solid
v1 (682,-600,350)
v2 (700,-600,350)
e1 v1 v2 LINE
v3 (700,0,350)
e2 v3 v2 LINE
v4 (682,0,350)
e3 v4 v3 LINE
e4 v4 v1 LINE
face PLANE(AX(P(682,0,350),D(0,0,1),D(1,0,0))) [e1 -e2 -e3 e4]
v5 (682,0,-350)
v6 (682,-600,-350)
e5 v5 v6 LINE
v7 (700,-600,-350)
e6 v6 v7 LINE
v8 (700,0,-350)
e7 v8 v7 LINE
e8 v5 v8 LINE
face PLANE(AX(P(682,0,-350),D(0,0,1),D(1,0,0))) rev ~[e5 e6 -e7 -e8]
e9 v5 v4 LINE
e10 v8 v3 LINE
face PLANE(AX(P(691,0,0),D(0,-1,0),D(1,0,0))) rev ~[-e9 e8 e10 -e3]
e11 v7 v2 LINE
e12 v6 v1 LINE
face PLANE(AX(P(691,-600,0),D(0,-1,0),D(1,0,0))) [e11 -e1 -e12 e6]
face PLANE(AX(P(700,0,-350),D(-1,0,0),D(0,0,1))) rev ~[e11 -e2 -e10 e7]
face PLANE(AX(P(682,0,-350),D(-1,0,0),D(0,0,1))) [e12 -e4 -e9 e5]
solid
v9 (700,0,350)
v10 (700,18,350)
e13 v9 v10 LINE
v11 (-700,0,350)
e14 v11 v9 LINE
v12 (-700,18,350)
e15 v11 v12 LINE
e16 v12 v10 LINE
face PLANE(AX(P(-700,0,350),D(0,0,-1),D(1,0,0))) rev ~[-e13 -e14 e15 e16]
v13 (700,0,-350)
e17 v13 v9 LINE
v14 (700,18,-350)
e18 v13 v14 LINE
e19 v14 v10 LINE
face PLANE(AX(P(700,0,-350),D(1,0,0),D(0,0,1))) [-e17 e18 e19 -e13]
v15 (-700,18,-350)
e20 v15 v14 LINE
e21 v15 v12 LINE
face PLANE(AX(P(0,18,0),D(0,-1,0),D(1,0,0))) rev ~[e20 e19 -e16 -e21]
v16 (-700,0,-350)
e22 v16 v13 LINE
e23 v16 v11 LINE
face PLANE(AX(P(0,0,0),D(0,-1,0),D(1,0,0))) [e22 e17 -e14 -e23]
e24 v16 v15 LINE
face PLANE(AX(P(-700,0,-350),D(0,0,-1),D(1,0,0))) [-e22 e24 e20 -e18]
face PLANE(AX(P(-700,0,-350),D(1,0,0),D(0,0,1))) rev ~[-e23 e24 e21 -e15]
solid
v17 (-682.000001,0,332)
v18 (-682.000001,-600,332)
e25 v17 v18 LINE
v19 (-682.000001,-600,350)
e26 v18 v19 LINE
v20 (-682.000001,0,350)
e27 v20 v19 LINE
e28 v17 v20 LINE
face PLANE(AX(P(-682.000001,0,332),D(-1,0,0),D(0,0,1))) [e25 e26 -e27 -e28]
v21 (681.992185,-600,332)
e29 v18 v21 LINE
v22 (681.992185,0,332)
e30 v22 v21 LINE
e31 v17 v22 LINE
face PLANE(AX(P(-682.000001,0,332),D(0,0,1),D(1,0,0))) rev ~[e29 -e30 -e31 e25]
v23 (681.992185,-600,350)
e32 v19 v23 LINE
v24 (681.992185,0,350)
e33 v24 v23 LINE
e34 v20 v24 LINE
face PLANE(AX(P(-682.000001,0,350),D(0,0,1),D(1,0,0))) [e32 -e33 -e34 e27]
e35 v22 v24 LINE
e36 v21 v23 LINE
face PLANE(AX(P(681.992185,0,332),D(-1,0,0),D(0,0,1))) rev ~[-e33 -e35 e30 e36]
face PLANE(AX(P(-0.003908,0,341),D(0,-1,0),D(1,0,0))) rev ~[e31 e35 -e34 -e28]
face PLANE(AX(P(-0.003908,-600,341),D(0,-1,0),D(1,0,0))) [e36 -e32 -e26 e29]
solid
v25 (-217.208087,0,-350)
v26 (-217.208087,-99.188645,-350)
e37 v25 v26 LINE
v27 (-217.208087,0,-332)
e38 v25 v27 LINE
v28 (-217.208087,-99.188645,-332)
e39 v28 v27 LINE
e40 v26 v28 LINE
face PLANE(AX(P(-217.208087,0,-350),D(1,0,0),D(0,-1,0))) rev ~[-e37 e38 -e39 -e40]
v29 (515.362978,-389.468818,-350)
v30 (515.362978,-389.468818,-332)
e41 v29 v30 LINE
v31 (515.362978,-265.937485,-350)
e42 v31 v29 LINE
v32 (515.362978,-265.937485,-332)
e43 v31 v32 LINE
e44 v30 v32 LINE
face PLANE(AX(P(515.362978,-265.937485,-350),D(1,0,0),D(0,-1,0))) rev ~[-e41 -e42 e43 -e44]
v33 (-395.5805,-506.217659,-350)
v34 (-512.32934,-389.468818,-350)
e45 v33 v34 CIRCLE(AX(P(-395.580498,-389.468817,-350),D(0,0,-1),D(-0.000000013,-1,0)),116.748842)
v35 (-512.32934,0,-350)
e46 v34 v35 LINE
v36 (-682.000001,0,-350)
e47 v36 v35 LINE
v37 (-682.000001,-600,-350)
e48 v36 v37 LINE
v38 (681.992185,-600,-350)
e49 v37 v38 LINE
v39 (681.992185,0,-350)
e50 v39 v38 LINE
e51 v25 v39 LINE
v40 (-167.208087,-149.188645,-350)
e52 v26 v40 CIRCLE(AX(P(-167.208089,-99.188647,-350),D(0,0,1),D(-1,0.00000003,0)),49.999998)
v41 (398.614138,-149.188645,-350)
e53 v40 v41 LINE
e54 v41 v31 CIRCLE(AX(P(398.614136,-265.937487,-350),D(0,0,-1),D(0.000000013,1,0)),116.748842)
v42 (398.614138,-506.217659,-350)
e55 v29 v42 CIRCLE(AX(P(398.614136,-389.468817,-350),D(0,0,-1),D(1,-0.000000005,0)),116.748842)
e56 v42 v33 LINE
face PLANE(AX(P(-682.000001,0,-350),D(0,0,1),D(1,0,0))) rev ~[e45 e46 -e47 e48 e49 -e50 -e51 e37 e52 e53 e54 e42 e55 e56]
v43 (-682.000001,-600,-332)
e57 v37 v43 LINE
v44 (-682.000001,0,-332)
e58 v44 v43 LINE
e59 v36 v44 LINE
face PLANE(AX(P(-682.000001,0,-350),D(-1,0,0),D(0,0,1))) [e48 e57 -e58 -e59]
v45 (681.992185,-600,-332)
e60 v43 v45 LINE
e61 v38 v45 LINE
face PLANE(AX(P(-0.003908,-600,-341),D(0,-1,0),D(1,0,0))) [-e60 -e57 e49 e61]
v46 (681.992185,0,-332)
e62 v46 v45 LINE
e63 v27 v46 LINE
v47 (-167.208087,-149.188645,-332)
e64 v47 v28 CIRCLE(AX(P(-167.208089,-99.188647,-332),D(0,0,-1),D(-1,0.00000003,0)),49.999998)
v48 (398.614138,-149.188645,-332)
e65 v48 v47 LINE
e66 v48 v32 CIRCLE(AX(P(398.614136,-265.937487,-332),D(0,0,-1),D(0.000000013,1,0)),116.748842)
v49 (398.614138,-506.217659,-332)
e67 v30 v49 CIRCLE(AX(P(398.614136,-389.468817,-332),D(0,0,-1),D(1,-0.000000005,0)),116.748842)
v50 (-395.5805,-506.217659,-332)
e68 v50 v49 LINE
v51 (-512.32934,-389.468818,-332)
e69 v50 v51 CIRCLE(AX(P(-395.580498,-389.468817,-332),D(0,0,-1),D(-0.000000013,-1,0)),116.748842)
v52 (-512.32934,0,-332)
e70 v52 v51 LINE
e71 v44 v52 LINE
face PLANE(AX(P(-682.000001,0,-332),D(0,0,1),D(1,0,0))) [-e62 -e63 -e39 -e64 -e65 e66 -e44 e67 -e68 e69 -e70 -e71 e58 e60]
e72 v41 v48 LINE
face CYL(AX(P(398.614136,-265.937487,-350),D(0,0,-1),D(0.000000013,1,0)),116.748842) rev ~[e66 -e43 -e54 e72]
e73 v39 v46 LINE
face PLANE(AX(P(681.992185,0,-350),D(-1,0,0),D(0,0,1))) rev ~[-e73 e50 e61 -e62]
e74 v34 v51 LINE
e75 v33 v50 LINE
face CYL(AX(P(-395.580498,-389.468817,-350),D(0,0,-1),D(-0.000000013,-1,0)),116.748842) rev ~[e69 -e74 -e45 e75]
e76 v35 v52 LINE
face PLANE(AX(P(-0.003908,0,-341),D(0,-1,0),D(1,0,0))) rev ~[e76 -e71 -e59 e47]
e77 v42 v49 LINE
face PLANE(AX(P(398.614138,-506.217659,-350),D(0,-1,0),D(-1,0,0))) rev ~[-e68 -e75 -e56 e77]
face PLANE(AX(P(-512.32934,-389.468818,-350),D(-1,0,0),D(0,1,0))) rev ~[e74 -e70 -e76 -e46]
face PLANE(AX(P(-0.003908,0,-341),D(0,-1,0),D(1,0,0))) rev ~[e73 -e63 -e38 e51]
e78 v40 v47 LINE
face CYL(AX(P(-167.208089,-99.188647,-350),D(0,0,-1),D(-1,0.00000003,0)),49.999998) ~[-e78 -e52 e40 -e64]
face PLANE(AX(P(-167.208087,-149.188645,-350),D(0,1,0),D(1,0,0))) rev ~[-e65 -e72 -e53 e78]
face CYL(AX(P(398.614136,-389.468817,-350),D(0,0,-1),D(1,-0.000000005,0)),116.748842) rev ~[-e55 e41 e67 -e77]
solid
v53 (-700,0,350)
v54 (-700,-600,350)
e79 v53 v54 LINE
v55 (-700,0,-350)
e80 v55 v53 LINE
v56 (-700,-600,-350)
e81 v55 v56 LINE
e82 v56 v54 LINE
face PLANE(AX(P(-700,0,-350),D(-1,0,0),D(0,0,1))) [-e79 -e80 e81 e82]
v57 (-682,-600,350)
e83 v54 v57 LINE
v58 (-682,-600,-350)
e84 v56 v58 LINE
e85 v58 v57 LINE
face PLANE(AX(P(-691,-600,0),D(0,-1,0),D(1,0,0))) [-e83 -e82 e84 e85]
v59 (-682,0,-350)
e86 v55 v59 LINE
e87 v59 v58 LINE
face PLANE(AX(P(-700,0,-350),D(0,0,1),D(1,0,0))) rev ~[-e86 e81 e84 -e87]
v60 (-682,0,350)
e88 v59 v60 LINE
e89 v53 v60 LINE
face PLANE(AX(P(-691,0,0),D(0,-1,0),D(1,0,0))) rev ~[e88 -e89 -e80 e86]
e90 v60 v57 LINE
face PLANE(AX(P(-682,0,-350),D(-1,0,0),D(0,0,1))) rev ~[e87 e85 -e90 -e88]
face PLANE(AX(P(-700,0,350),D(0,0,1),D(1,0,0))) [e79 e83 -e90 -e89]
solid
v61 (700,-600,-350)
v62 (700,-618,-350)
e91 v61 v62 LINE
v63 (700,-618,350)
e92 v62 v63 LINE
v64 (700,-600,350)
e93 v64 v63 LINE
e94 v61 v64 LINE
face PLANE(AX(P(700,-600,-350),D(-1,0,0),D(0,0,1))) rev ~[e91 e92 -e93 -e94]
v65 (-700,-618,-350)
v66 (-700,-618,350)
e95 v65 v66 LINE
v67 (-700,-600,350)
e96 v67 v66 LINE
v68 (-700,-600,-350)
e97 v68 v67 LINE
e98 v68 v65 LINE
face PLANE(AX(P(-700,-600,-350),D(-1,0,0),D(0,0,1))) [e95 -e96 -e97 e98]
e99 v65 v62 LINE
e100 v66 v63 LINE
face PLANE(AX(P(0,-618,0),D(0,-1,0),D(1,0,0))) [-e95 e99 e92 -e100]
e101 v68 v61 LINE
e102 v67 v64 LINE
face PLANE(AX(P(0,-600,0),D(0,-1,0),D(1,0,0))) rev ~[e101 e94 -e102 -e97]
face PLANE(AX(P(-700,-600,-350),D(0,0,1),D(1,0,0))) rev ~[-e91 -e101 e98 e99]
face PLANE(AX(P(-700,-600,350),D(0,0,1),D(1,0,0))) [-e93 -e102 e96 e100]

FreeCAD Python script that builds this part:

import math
import FreeCAD as App
import Part
import Sketcher


def add_polygon(sketch, points):
    """Adds a closed chain of lines whose ends are joined by coincident constraints."""
    first, n = sketch.GeometryCount, len(points)
    for a, b in zip(points, points[1:] + points[:1]):
        sketch.addGeometry(Part.LineSegment(App.Vector(*a, 0), App.Vector(*b, 0)), False)
    for i in range(n):
        sketch.addConstraint(Sketcher.Constraint("Coincident", first + i, 2, first + (i + 1) % n, 1))

doc = App.newDocument("Part")
body = doc.addObject("PartDesign::Body", "Body")

# Sketch on XZ plane
sketch1 = body.newObject("Sketcher::SketchObject", "Sketch")
sketch1.AttachmentSupport = (doc.getObject("XZ_Plane"), [""])
sketch1.MapMode = "FlatFace"
add_polygon(sketch1, [(-700, 350), (-700, -350), (700, -350), (700, 350)])  # lines 0-3
sketch1.addConstraint([
    Sketcher.Constraint("Vertical", 0),
    Sketcher.Constraint("Horizontal", 1),
    Sketcher.Constraint("Vertical", 2),
    Sketcher.Constraint("Horizontal", 3),
    Sketcher.Constraint("Symmetric", 0, 2, 2, 2, -1, 1),
    Sketcher.Constraint("DistanceX", 1, 1, 1, 2, 1400.0),
    Sketcher.Constraint("DistanceY", 0, 2, 0, 1, 700.0),
])
pad1 = body.newObject("PartDesign::Pad", "Pad")
pad1.Profile = sketch1
pad1.Length = 18
pad1.Reversed = True
body2 = doc.addObject("PartDesign::Body", "Body001")
body2.AllowCompound = True

# Sketch on XZ plane
sketch2 = body2.newObject("Sketcher::SketchObject", "Sketch001")
sketch2.AttachmentSupport = (doc.getObject("XZ_Plane001"), [""])
sketch2.MapMode = "FlatFace"
add_polygon(sketch2, [(-700, 350), (-700, -350), (-682, -350), (-682, 350)])  # lines 0-3
add_polygon(sketch2, [(682, 350), (682, -350), (700, -350), (700, 350)])  # lines 4-7
sketch2.addConstraint([
    Sketcher.Constraint("Vertical", 0),
    Sketcher.Constraint("Horizontal", 1),
    Sketcher.Constraint("Vertical", 2),
    Sketcher.Constraint("Horizontal", 3),
    Sketcher.Constraint("Vertical", 4),
    Sketcher.Constraint("Horizontal", 5),
    Sketcher.Constraint("Vertical", 6),
    Sketcher.Constraint("Horizontal", 7),
    Sketcher.Constraint("Symmetric", 2, 2, 4, 2, -1, 1),
    Sketcher.Constraint("Symmetric", 0, 2, 6, 2, -1, 1),
    Sketcher.Constraint("Horizontal", 1, 2, 4, 2),
    Sketcher.Constraint("DistanceX", 1, 1, 1, 2, 18.0),
    Sketcher.Constraint("DistanceY", 0, 2, 0, 1, 700.0),
    Sketcher.Constraint("DistanceX", 0, 2, -1, 1, 700.0),
])
pad2 = body2.newObject("PartDesign::Pad", "Pad001")
pad2.Profile = sketch2
pad2.Length = 600
body3 = doc.addObject("PartDesign::Body", "Body002")
body3.AllowCompound = True

# Sketch on XZ plane
sketch3 = body3.newObject("Sketcher::SketchObject", "Sketch002")
sketch3.AttachmentSupport = (doc.getObject("XZ_Plane002"), [""])
sketch3.MapMode = "FlatFace"
add_polygon(sketch3, [(-682, 350), (-682, 332), (682, 332), (682, 350)])  # lines 0-3
add_polygon(sketch3, [(-682, -332), (-682, -350), (682, -350), (682, -332)])  # lines 4-7
sketch3.addConstraint([
    Sketcher.Constraint("Vertical", 0),
    Sketcher.Constraint("Horizontal", 1),
    Sketcher.Constraint("Vertical", 2),
    Sketcher.Constraint("Horizontal", 3),
    Sketcher.Constraint("Vertical", 4),
    Sketcher.Constraint("Horizontal", 5),
    Sketcher.Constraint("Vertical", 6),
    Sketcher.Constraint("Horizontal", 7),
    Sketcher.Constraint("Symmetric", 3, 2, 4, 2, -1),
    Sketcher.Constraint("Symmetric", 1, 2, 6, 2, -1),
    Sketcher.Constraint("DistanceY", 0, 2, 0, 1, 18.0),
    Sketcher.Constraint("DistanceX", 0, 2, -1, 1, 682.000001),
    Sketcher.Constraint("DistanceY", -1, 1, 0, 2, 332.0),
    Sketcher.Constraint("DistanceX", 1, 1, 1, 2, 1363.992185),
])
pad3 = body3.newObject("PartDesign::Pad", "Pad002")
pad3.Profile = sketch3
pad3.Length = 600

# Sketch on XY plane
sketch4 = body3.newObject("Sketcher::SketchObject", "Sketch003")
sketch4.AttachmentSupport = (doc.getObject("XY_Plane002"), [""])
sketch4.MapMode = "FlatFace"
sketch4.AttachmentOffset = App.Placement(App.Vector(0, 0, -350), App.Rotation())
sketch4.addGeometry([
    Part.LineSegment(App.Vector(399, -506, 0), App.Vector(-396, -506, 0)),  # 0
    Part.ArcOfCircle(Part.Circle(App.Vector(-396, -389, 0), App.Vector(0, 0, 1), 117), math.radians(-180), math.radians(-90)),  # 1
    Part.LineSegment(App.Vector(-512, -389, 0), App.Vector(-512, 0, 0)),  # 2
    Part.LineSegment(App.Vector(-512, 0, 0), App.Vector(-217, 0, 0)),  # 3
    Part.LineSegment(App.Vector(-217, 0, 0), App.Vector(-217, -99, 0)),  # 4
    Part.ArcOfCircle(Part.Circle(App.Vector(-167, -99, 0), App.Vector(0, 0, 1), 50), math.radians(180), math.radians(270)),  # 5
    Part.LineSegment(App.Vector(-167, -149, 0), App.Vector(399, -149, 0)),  # 6
    Part.ArcOfCircle(Part.Circle(App.Vector(399, -266, 0), App.Vector(0, 0, 1), 117), math.radians(0), math.radians(90)),  # 7
    Part.LineSegment(App.Vector(515, -266, 0), App.Vector(515, -389, 0)),  # 8
    Part.ArcOfCircle(Part.Circle(App.Vector(399, -389, 0), App.Vector(0, 0, 1), 117), math.radians(-90), math.radians(0)),  # 9
], False)
sketch4.addConstraint([
    Sketcher.Constraint("Tangent", 0, 2, 1, 2),
    Sketcher.Constraint("Tangent", 1, 1, 2, 1),
    Sketcher.Constraint("Coincident", 2, 2, 3, 1),
    Sketcher.Constraint("Coincident", 3, 2, 4, 1),
    Sketcher.Constraint("Tangent", 4, 2, 5, 1),
    Sketcher.Constraint("Tangent", 5, 2, 6, 1),
    Sketcher.Constraint("Tangent", 6, 2, 7, 2),
    Sketcher.Constraint("Tangent", 7, 1, 8, 1),
    Sketcher.Constraint("Tangent", 8, 2, 9, 2),
    Sketcher.Constraint("Tangent", 9, 1, 0, 1),
    Sketcher.Constraint("Horizontal", 0),
    Sketcher.Constraint("Vertical", 2),
    Sketcher.Constraint("Horizontal", 3),
    Sketcher.Constraint("Vertical", 4),
    Sketcher.Constraint("Horizontal", 6),
    Sketcher.Constraint("Vertical", 8),
    Sketcher.Constraint("Equal", 1, 7),
    Sketcher.Constraint("Equal", 7, 9),
    Sketcher.Constraint("PointOnObject", 2, 2, -1),
    Sketcher.Constraint("Radius", 5, 49.999998),
    Sketcher.Constraint("Radius", 1, 116.748842),
    Sketcher.Constraint("DistanceY", 2, 1, 2, 2, 389.468818),
    Sketcher.Constraint("DistanceX", 1, 3, -1, 1, 395.580498),
    Sketcher.Constraint("DistanceX", 0, 2, 0, 1, 794.194638),
    Sketcher.Constraint("DistanceX", 3, 1, 3, 2, 295.121253),
    Sketcher.Constraint("DistanceY", 4, 2, 4, 1, 99.188645),
])
pocket1 = body3.newObject("PartDesign::Pocket", "Pocket")
pocket1.Profile = sketch4
pocket1.Length = 25
pocket1.Reversed = True
body4 = doc.addObject("PartDesign::Body", "Body003")

# Sketch on XZ plane
sketch5 = body4.newObject("Sketcher::SketchObject", "Sketch004")
sketch5.AttachmentSupport = (doc.getObject("XZ_Plane003"), [""])
sketch5.MapMode = "FlatFace"
sketch5.AttachmentOffset = App.Placement(App.Vector(0, 0, 600), App.Rotation())
add_polygon(sketch5, [(-700, 350), (-700, -350), (700, -350), (700, 350)])  # lines 0-3
sketch5.addConstraint([
    Sketcher.Constraint("Vertical", 0),
    Sketcher.Constraint("Horizontal", 1),
    Sketcher.Constraint("Vertical", 2),
    Sketcher.Constraint("Horizontal", 3),
    Sketcher.Constraint("Symmetric", 0, 2, 2, 2, -1, 1),
    Sketcher.Constraint("DistanceX", 1, 1, 1, 2, 1400.0),
    Sketcher.Constraint("DistanceY", 0, 2, 0, 1, 700.0),
])
pad4 = body4.newObject("PartDesign::Pad", "Pad003")
pad4.Profile = sketch5
pad4.Length = 18

doc.recompute()
